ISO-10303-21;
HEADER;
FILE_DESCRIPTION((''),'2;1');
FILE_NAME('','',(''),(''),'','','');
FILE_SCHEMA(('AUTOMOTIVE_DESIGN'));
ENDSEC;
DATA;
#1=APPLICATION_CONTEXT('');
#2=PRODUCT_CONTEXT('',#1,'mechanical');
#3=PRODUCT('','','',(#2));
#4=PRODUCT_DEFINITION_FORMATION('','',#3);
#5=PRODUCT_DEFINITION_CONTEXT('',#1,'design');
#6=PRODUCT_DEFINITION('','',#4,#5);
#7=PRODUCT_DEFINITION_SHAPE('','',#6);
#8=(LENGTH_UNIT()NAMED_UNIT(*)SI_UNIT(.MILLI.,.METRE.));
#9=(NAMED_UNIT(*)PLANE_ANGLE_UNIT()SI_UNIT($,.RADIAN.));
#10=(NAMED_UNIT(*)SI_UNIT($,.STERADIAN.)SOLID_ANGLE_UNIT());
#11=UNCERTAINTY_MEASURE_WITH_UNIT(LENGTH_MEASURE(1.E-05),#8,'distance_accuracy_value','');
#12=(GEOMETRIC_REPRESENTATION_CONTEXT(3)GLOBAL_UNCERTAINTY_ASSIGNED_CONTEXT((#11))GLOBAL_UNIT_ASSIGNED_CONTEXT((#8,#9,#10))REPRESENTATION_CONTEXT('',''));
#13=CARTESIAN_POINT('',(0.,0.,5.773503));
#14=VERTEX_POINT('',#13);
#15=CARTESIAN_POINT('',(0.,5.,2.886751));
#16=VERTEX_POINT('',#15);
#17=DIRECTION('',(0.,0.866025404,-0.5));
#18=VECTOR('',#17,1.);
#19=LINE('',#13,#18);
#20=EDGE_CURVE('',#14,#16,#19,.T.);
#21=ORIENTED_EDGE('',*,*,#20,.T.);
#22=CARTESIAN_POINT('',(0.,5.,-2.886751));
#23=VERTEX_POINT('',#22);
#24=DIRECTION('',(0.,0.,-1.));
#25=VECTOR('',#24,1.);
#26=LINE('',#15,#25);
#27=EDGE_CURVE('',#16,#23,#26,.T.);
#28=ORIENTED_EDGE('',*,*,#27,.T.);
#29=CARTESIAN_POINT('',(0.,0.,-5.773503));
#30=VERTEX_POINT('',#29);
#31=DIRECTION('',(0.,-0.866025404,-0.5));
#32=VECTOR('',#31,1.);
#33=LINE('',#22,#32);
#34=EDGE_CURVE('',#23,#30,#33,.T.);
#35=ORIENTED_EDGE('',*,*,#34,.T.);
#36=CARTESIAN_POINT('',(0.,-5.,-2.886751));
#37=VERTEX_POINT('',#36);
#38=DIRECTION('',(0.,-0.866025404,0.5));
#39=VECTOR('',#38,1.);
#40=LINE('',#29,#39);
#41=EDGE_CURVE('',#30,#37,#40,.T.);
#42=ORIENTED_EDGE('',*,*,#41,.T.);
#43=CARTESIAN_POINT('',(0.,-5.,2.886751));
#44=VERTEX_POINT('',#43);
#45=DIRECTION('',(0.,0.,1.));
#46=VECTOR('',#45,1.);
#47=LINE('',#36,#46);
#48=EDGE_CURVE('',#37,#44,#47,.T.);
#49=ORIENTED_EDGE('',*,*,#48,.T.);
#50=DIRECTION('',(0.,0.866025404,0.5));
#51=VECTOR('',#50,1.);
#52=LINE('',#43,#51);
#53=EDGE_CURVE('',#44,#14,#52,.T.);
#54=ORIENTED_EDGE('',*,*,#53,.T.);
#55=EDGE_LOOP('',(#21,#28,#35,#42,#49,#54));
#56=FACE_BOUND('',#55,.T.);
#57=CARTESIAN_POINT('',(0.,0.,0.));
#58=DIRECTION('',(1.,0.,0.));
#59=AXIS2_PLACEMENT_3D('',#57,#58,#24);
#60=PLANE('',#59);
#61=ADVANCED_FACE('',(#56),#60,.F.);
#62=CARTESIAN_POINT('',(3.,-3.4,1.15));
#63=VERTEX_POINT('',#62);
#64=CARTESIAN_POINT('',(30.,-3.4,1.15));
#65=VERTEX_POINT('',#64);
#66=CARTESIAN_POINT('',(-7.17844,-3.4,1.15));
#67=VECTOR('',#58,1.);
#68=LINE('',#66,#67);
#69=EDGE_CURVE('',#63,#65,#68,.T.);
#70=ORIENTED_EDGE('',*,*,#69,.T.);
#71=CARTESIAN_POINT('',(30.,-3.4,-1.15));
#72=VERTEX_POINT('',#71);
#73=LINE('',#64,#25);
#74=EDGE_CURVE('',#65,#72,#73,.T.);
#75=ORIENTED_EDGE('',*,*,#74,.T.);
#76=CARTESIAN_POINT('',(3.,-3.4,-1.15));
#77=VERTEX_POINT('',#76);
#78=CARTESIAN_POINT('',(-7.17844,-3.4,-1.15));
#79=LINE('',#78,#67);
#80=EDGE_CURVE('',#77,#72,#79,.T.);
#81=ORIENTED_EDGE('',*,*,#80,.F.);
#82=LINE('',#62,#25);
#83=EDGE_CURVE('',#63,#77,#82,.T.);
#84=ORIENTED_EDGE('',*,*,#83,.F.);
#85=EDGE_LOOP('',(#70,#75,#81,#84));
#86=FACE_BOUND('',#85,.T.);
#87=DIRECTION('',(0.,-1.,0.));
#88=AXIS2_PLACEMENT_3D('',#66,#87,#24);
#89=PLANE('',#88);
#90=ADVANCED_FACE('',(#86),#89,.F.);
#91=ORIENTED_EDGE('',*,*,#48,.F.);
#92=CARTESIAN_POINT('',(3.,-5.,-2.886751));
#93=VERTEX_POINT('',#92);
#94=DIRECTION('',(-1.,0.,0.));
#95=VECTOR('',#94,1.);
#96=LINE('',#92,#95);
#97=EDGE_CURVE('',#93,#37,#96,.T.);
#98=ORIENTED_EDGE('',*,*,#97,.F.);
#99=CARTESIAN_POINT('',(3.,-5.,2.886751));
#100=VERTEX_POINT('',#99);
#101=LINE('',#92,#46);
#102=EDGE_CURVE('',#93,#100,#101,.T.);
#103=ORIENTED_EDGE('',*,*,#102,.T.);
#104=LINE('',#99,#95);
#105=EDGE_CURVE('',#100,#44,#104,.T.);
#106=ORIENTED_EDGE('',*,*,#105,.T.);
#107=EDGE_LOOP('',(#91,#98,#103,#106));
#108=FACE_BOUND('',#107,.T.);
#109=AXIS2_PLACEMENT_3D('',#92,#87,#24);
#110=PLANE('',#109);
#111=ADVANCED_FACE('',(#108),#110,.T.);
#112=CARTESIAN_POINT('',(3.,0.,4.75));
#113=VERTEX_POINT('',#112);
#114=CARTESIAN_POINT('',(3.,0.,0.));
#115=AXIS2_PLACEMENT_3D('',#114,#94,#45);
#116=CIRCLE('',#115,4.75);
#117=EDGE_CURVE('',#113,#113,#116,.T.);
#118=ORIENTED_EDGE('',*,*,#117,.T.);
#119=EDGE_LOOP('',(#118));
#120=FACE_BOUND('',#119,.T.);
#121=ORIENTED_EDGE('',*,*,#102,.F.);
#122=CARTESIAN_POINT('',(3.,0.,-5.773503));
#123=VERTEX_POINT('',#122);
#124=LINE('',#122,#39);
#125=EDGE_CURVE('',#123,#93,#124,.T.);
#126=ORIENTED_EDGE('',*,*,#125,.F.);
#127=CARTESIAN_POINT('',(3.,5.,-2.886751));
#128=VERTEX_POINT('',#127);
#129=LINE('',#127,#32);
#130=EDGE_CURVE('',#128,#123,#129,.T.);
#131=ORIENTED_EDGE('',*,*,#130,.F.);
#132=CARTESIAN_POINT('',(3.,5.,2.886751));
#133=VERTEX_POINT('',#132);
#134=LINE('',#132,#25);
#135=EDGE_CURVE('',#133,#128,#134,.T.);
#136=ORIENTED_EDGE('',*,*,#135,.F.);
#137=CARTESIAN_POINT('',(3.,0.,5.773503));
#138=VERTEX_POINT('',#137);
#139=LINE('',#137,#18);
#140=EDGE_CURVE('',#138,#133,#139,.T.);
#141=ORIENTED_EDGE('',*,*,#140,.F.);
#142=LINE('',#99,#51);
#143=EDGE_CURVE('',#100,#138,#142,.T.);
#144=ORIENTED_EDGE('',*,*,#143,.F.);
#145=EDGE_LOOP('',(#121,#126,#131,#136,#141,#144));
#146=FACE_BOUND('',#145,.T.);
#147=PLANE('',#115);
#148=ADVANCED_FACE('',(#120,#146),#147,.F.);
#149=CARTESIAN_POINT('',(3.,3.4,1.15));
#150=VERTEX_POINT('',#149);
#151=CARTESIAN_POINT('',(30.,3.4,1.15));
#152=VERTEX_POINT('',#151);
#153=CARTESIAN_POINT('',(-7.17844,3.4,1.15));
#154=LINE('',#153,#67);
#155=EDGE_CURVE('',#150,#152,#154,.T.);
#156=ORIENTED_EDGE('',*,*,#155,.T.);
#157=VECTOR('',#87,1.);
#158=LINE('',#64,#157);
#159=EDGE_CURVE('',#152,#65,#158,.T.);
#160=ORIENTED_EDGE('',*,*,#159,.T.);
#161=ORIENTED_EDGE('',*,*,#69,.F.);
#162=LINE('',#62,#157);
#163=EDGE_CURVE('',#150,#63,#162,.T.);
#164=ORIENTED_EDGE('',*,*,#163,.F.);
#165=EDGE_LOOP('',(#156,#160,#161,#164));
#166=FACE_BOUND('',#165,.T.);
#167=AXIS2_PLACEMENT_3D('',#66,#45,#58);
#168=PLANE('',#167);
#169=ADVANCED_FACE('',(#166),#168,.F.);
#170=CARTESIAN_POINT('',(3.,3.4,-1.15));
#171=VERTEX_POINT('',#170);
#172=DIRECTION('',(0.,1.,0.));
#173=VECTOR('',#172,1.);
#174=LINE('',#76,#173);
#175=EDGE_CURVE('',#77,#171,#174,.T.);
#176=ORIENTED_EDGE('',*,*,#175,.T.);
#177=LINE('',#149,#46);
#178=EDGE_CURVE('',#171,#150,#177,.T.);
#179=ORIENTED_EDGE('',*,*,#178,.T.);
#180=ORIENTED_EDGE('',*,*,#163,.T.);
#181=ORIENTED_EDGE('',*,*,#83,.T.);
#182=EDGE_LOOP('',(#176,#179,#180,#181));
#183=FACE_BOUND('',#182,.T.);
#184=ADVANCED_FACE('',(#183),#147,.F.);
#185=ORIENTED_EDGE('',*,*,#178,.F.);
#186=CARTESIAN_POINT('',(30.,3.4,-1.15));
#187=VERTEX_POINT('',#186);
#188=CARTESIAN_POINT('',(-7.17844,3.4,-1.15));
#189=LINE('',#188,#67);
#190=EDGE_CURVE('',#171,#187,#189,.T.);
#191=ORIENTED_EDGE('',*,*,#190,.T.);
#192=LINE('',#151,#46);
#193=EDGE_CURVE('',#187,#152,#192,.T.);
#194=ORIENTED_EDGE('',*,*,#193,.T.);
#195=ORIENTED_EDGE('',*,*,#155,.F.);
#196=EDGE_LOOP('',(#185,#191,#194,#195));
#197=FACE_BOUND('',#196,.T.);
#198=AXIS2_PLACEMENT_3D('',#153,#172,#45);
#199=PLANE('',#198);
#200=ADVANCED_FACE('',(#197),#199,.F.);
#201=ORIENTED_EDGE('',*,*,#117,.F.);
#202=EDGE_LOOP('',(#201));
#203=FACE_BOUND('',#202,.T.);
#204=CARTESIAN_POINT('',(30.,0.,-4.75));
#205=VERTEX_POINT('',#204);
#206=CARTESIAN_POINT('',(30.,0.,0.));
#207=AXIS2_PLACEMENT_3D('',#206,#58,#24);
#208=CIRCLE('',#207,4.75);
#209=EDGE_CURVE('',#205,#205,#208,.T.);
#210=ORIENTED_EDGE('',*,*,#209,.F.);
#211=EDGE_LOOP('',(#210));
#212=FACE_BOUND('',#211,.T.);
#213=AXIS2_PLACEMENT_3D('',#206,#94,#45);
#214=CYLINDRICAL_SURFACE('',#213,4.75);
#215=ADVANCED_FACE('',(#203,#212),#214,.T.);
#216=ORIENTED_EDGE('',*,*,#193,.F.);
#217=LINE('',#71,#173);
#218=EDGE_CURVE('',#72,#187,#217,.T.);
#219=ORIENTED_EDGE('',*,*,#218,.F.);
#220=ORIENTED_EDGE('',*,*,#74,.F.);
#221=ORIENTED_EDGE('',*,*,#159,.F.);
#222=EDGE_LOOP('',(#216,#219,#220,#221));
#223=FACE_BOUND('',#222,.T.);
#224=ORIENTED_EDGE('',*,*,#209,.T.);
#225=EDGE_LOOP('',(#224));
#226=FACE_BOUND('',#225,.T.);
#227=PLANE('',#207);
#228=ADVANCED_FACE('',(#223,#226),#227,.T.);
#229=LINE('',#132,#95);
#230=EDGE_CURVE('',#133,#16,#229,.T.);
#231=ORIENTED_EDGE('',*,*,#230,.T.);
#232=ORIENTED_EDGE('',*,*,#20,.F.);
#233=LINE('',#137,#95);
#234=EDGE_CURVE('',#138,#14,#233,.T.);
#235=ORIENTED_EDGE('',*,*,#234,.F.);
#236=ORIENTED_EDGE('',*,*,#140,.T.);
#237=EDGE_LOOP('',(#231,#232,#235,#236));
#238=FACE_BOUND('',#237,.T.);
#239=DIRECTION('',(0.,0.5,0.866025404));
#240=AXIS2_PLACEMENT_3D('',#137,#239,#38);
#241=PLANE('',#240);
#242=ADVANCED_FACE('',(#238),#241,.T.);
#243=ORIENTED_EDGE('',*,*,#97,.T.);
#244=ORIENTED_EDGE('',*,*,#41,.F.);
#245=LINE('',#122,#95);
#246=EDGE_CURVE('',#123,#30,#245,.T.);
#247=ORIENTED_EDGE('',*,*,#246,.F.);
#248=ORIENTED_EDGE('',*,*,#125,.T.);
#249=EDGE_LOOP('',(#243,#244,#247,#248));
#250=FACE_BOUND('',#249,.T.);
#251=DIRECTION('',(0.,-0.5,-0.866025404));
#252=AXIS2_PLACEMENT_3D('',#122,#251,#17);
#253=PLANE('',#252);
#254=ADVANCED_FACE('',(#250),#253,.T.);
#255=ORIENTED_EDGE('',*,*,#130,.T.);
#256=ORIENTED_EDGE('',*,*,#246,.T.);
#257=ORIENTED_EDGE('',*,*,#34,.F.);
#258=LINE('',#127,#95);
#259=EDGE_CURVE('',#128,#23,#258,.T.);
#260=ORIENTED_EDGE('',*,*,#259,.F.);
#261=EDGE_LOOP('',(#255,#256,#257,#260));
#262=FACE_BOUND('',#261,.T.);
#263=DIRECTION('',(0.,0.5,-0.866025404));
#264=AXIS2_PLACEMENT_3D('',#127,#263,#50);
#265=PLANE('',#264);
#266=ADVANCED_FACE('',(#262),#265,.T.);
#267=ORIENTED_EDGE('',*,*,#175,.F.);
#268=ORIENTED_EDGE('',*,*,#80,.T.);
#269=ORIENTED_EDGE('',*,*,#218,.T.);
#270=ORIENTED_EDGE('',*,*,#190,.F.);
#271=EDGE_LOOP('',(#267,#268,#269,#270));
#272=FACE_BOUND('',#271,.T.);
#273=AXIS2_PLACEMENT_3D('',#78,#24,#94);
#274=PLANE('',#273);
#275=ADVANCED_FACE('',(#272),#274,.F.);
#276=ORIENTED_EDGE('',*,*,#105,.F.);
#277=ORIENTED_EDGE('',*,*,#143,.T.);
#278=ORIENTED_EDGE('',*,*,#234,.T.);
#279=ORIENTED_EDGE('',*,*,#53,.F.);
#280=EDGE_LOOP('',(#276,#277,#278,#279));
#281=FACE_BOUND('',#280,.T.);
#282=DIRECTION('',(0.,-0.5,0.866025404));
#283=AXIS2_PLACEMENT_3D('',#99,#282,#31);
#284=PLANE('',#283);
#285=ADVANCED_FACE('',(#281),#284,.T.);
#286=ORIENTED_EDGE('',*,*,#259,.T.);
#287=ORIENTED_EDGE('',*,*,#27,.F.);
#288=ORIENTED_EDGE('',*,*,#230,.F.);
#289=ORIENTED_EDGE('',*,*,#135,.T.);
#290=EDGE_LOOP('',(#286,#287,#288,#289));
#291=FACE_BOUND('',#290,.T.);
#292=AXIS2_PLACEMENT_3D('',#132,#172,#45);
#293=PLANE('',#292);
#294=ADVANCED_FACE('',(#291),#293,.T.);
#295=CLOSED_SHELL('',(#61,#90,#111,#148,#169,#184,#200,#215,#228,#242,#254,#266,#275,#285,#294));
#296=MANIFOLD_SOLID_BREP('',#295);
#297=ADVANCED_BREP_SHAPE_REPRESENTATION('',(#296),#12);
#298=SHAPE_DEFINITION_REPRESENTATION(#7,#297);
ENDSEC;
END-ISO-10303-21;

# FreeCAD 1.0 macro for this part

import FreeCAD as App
import Part
import Sketcher

V = App.Vector
Q = App.Units.Quantity


def add_polygon(sketch, points):
    """Adds a closed chain of lines whose ends are joined by coincident constraints."""
    first, n = sketch.GeometryCount, len(points)
    for a, b in zip(points, points[1:] + points[:1]):
        sketch.addGeometry(Part.LineSegment(App.Vector(*a, 0), App.Vector(*b, 0)), False)
    for i in range(n):
        sketch.addConstraint(Sketcher.Constraint("Coincident", first + i, 2, first + (i + 1) % n, 1))

doc = App.newDocument("Part")
body = doc.addObject("PartDesign::Body", "Body")

sketch1 = body.newObject("Sketcher::SketchObject", "Sketch")
sketch1.AttachmentSupport = (doc.getObject("YZ_Plane"), [""])
sketch1.MapMode = "FlatFace"
sketch1.addGeometry(Part.Circle(V(0, 0, 0), V(0, 0, 1), 4.8), False)
sketch1.addConstraint([
    Sketcher.Constraint("Coincident", 0, 3, -1, 1),
    Sketcher.Constraint("Diameter", 0, 9.5),
])
pad1 = body.newObject("PartDesign::Pad", "Pad")
pad1.Profile = sketch1
pad1.Length = 30

sketch2 = body.newObject("Sketcher::SketchObject", "Sketch001")
sketch2.AttachmentSupport = (doc.getObject("YZ_Plane"), [""])
sketch2.MapMode = "FlatFace"
sketch2.AttachmentOffset = App.Placement(V(0, 0, 30), App.Rotation())
add_polygon(sketch2, [(3.4, 1.1), (-3.4, 1.1), (-3.4, -1.1), (3.4, -1.1)])
sketch2.addConstraint([
    Sketcher.Constraint("Horizontal", 0),
    Sketcher.Constraint("Vertical", 1),
    Sketcher.Constraint("Horizontal", 2),
    Sketcher.Constraint("Vertical", 3),
    Sketcher.Constraint("Symmetric", 0, 2, 2, 2, -1, 1),
    Sketcher.Constraint("DistanceX", 0, 2, 0, 1, 6.8),
    Sketcher.Constraint("DistanceY", 1, 2, 1, 1, 2.3),
])
pocket1 = body.newObject("PartDesign::Pocket", "Pocket")
pocket1.Profile = sketch2
pocket1.Length = 30

sketch3 = body.newObject("Sketcher::SketchObject", "Sketch002")
sketch3.AttachmentSupport = (doc.getObject("YZ_Plane"), [""])
sketch3.MapMode = "FlatFace"
add_polygon(sketch3, [(0, 6), (5, 3), (5, -3), (0, -6), (-5, -3), (-5, 3)])
sketch3.addConstraint([
    Sketcher.Constraint("Vertical", 1),
    Sketcher.Constraint("Vertical", 4),
    Sketcher.Constraint("Symmetric", 0, 2, 3, 2, -1, 1),
    Sketcher.Constraint("Symmetric", 2, 2, 5, 2, -1, 1),
    Sketcher.Constraint("PointOnObject", 2, 2, -2),
    Sketcher.Constraint("Parallel", 2, 5),
    Sketcher.Constraint("Horizontal", 1, 2, 3, 2),
    Sketcher.Constraint("Angle", 0, Q("-30 deg")),
    Sketcher.Constraint("DistanceX", -1, 1, 0, 2, 5.0),
    Sketcher.Constraint("DistanceY", 1, 2, 1, 1, 5.773503),
])
pad2 = body.newObject("PartDesign::Pad", "Pad001")
pad2.Profile = sketch3
pad2.Length = 3

doc.recompute()
